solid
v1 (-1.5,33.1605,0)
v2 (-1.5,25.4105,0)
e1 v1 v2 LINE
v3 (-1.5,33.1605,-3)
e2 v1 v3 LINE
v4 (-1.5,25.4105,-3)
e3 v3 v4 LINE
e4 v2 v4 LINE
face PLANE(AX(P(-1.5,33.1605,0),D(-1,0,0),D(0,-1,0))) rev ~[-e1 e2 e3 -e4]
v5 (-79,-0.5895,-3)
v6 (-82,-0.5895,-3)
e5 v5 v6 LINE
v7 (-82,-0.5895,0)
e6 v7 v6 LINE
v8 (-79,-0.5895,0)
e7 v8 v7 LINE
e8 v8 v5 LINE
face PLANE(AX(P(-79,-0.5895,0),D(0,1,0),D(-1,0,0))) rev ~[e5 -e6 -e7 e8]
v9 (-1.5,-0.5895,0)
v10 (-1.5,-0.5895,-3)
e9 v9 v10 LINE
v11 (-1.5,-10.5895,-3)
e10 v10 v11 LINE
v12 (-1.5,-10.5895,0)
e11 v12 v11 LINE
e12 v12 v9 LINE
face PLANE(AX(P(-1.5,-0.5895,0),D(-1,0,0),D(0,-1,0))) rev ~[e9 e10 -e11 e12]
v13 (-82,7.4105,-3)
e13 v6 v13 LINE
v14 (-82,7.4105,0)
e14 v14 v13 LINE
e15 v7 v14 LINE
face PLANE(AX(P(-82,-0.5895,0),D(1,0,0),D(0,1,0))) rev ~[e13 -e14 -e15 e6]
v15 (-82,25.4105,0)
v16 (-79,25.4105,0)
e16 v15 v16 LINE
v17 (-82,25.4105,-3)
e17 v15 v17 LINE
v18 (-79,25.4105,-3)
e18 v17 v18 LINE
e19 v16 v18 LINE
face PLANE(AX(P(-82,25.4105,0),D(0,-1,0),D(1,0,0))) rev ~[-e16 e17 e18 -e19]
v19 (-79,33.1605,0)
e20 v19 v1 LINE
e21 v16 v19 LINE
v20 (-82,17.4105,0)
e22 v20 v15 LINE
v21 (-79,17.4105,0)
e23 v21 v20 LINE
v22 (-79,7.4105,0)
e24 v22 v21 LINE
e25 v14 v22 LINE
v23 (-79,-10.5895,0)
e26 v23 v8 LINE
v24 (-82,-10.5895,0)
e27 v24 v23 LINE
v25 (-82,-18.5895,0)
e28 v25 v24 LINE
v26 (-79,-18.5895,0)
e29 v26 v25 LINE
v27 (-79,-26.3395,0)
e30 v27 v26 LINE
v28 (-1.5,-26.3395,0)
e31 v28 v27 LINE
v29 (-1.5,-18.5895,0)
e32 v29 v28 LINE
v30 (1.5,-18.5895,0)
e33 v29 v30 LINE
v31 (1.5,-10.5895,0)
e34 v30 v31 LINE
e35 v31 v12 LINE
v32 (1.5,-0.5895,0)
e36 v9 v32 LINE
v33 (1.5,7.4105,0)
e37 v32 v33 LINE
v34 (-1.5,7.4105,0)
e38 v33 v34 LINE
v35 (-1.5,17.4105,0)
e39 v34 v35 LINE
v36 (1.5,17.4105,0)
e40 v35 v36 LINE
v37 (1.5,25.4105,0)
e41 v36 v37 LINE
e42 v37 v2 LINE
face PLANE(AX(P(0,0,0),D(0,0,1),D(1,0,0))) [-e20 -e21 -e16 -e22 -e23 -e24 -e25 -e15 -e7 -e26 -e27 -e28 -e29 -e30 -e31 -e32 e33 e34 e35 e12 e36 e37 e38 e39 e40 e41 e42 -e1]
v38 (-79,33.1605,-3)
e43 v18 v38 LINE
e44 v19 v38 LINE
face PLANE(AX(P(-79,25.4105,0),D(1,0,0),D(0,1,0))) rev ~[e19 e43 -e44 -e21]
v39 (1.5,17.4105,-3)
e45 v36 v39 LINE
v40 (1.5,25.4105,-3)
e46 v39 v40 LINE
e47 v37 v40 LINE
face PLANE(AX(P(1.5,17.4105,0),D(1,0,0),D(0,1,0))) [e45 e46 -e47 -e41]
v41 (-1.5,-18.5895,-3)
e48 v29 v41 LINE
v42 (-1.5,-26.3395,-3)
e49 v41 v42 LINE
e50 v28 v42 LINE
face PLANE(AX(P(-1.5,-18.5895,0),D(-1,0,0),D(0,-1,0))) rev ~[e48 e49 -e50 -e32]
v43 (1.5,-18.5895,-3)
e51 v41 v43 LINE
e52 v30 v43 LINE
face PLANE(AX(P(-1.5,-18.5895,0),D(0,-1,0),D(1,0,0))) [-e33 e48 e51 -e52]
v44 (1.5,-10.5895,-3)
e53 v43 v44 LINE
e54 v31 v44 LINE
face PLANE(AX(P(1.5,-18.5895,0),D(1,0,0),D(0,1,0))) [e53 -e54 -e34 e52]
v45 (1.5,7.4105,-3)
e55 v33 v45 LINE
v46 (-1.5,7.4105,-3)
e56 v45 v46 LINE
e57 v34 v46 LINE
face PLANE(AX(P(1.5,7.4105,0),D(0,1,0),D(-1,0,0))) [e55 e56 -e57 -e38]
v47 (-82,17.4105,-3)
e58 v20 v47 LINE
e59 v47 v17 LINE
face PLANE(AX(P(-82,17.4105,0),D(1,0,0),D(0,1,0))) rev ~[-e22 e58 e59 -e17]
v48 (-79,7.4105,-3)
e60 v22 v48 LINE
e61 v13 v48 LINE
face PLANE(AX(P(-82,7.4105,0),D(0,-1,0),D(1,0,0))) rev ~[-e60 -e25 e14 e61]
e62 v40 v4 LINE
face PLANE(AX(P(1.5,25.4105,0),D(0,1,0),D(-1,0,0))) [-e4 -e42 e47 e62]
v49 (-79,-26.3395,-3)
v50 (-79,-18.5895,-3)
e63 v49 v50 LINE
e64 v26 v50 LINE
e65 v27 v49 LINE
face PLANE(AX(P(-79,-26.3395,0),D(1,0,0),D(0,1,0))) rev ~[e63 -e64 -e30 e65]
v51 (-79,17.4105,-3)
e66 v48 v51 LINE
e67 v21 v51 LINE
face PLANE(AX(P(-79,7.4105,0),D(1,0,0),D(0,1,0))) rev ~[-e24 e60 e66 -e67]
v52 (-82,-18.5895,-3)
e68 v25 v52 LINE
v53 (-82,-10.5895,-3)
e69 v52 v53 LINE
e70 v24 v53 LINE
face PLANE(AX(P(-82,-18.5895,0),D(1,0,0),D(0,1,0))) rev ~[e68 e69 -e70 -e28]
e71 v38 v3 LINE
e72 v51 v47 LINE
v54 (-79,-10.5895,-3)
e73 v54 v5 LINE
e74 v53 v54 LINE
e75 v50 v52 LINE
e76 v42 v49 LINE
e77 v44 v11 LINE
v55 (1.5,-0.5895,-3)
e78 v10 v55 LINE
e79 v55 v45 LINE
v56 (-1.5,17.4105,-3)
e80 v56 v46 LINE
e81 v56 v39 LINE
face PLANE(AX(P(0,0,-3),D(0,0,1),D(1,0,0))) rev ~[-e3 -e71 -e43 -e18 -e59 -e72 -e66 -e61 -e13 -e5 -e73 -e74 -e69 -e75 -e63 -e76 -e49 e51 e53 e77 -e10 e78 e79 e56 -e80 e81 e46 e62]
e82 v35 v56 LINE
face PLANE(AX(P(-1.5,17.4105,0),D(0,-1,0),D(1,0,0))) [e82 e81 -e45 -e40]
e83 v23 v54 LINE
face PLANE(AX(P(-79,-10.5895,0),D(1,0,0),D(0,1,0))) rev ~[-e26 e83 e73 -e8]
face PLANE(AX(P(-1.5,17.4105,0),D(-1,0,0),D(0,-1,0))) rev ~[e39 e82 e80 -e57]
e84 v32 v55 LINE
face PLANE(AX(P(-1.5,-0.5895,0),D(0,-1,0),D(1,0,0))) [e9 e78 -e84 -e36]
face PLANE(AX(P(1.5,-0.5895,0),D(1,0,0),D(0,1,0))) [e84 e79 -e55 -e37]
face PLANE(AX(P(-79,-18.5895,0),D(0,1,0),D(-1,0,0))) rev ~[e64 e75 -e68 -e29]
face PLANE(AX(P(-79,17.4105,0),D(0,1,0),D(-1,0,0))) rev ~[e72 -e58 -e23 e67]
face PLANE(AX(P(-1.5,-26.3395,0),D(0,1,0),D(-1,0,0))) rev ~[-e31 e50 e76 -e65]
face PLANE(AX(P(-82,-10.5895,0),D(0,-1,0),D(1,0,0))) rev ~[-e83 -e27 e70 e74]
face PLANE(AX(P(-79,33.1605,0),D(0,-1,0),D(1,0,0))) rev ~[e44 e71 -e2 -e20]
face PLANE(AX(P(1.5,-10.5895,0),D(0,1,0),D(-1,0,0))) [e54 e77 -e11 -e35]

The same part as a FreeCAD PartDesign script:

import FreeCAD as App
import Part
import Sketcher

V = App.Vector
Q = App.Units.Quantity

doc = App.newDocument("Part")
body = doc.addObject("PartDesign::Body", "Body")

sketch1 = body.newObject("Sketcher::SketchObject", "Sketch")
sketch1.AttachmentSupport = (doc.getObject("XY_Plane"), [""])
sketch1.MapMode = "FlatFace"
sketch1.addGeometry(Part.LineSegment(V(-79, -18.5895, 0), V(-79, -26.3395, 0)), False)
sketch1.addGeometry(Part.LineSegment(V(-79, -26.3395, 0), V(-1.5, -26.3395, 0)), False)
sketch1.addGeometry(Part.LineSegment(V(-1.5, -26.3395, 0), V(-1.5, -18.5895, 0)), False)
sketch1.addGeometry(Part.LineSegment(V(-1.5, -18.5895, 0), V(1.5, -18.5895, 0)), False)
sketch1.addGeometry(Part.LineSegment(V(1.5, -18.5895, 0), V(1.5, -10.5895, 0)), False)
sketch1.addGeometry(Part.LineSegment(V(1.5, -10.5895, 0), V(-1.5, -10.5895, 0)), False)
sketch1.addGeometry(Part.LineSegment(V(-1.5, -10.5895, 0), V(-1.5, -0.5895, 0)), False)
sketch1.addGeometry(Part.LineSegment(V(-1.5, -0.5895, 0), V(1.5, -0.5895, 0)), False)
sketch1.addGeometry(Part.LineSegment(V(1.5, -0.5895, 0), V(1.5, 7.4105, 0)), False)
sketch1.addGeometry(Part.LineSegment(V(1.5, 7.4105, 0), V(-1.5, 7.4105, 0)), False)
sketch1.addGeometry(Part.LineSegment(V(-1.5, 7.4105, 0), V(-1.5, 17.4105, 0)), False)
sketch1.addGeometry(Part.LineSegment(V(-1.5, 17.4105, 0), V(1.5, 17.4105, 0)), False)
sketch1.addGeometry(Part.LineSegment(V(1.5, 17.4105, 0), V(1.5, 25.4105, 0)), False)
sketch1.addGeometry(Part.LineSegment(V(1.5, 25.4105, 0), V(-1.5, 25.4105, 0)), False)
sketch1.addGeometry(Part.LineSegment(V(-1.5, 25.4105, 0), V(-1.5, 33.1605, 0)), False)
sketch1.addGeometry(Part.LineSegment(V(-1.5, 33.1605, 0), V(-79, 33.1605, 0)), False)
sketch1.addGeometry(Part.LineSegment(V(-79, 33.1605, 0), V(-79, 25.4105, 0)), False)
sketch1.addGeometry(Part.LineSegment(V(-79, 25.4105, 0), V(-82, 25.4105, 0)), False)
sketch1.addGeometry(Part.LineSegment(V(-82, 25.4105, 0), V(-82, 17.4105, 0)), False)
sketch1.addGeometry(Part.LineSegment(V(-82, 17.4105, 0), V(-79, 17.4105, 0)), False)
sketch1.addGeometry(Part.LineSegment(V(-79, 17.4105, 0), V(-79, 7.4105, 0)), False)
sketch1.addGeometry(Part.LineSegment(V(-79, 7.4105, 0), V(-82, 7.4105, 0)), False)
sketch1.addGeometry(Part.LineSegment(V(-82, 7.4105, 0), V(-82, -0.5895, 0)), False)
sketch1.addGeometry(Part.LineSegment(V(-82, -0.5895, 0), V(-79, -0.5895, 0)), False)
sketch1.addGeometry(Part.LineSegment(V(-79, -0.5895, 0), V(-79, -10.5895, 0)), False)
sketch1.addGeometry(Part.LineSegment(V(-79, -10.5895, 0), V(-82, -10.5895, 0)), False)
sketch1.addGeometry(Part.LineSegment(V(-82, -10.5895, 0), V(-82, -18.5895, 0)), False)
sketch1.addGeometry(Part.LineSegment(V(-82, -18.5895, 0), V(-79, -18.5895, 0)), False)
sketch1.addConstraint(Sketcher.Constraint("Coincident", 0, 2, 1, 1))
sketch1.addConstraint(Sketcher.Constraint("Coincident", 1, 2, 2, 1))
sketch1.addConstraint(Sketcher.Constraint("Coincident", 2, 2, 3, 1))
sketch1.addConstraint(Sketcher.Constraint("Coincident", 3, 2, 4, 1))
sketch1.addConstraint(Sketcher.Constraint("Coincident", 4, 2, 5, 1))
sketch1.addConstraint(Sketcher.Constraint("Coincident", 5, 2, 6, 1))
sketch1.addConstraint(Sketcher.Constraint("Coincident", 6, 2, 7, 1))
sketch1.addConstraint(Sketcher.Constraint("Coincident", 7, 2, 8, 1))
sketch1.addConstraint(Sketcher.Constraint("Coincident", 8, 2, 9, 1))
sketch1.addConstraint(Sketcher.Constraint("Coincident", 9, 2, 10, 1))
sketch1.addConstraint(Sketcher.Constraint("Coincident", 10, 2, 11, 1))
sketch1.addConstraint(Sketcher.Constraint("Coincident", 11, 2, 12, 1))
sketch1.addConstraint(Sketcher.Constraint("Coincident", 12, 2, 13, 1))
sketch1.addConstraint(Sketcher.Constraint("Coincident", 13, 2, 14, 1))
sketch1.addConstraint(Sketcher.Constraint("Coincident", 14, 2, 15, 1))
sketch1.addConstraint(Sketcher.Constraint("Coincident", 15, 2, 16, 1))
sketch1.addConstraint(Sketcher.Constraint("Coincident", 16, 2, 17, 1))
sketch1.addConstraint(Sketcher.Constraint("Coincident", 17, 2, 18, 1))
sketch1.addConstraint(Sketcher.Constraint("Coincident", 18, 2, 19, 1))
sketch1.addConstraint(Sketcher.Constraint("Coincident", 19, 2, 20, 1))
sketch1.addConstraint(Sketcher.Constraint("Coincident", 20, 2, 21, 1))
sketch1.addConstraint(Sketcher.Constraint("Coincident", 21, 2, 22, 1))
sketch1.addConstraint(Sketcher.Constraint("Coincident", 22, 2, 23, 1))
sketch1.addConstraint(Sketcher.Constraint("Coincident", 23, 2, 24, 1))
sketch1.addConstraint(Sketcher.Constraint("Coincident", 24, 2, 25, 1))
sketch1.addConstraint(Sketcher.Constraint("Coincident", 25, 2, 26, 1))
sketch1.addConstraint(Sketcher.Constraint("Coincident", 26, 2, 27, 1))
sketch1.addConstraint(Sketcher.Constraint("Coincident", 27, 2, 0, 1))
sketch1.addConstraint(Sketcher.Constraint("Vertical", 0))
sketch1.addConstraint(Sketcher.Constraint("Horizontal", 1))
sketch1.addConstraint(Sketcher.Constraint("Vertical", 2))
sketch1.addConstraint(Sketcher.Constraint("Horizontal", 3))
sketch1.addConstraint(Sketcher.Constraint("Vertical", 4))
sketch1.addConstraint(Sketcher.Constraint("Horizontal", 5))
sketch1.addConstraint(Sketcher.Constraint("Vertical", 6))
sketch1.addConstraint(Sketcher.Constraint("Horizontal", 7))
sketch1.addConstraint(Sketcher.Constraint("Vertical", 8))
sketch1.addConstraint(Sketcher.Constraint("Horizontal", 9))
sketch1.addConstraint(Sketcher.Constraint("Vertical", 10))
sketch1.addConstraint(Sketcher.Constraint("Horizontal", 11))
sketch1.addConstraint(Sketcher.Constraint("Vertical", 12))
sketch1.addConstraint(Sketcher.Constraint("Horizontal", 13))
sketch1.addConstraint(Sketcher.Constraint("Vertical", 14))
sketch1.addConstraint(Sketcher.Constraint("Horizontal", 15))
sketch1.addConstraint(Sketcher.Constraint("Vertical", 16))
sketch1.addConstraint(Sketcher.Constraint("Horizontal", 17))
sketch1.addConstraint(Sketcher.Constraint("Vertical", 18))
sketch1.addConstraint(Sketcher.Constraint("Horizontal", 19))
sketch1.addConstraint(Sketcher.Constraint("Vertical", 20))
sketch1.addConstraint(Sketcher.Constraint("Horizontal", 21))
sketch1.addConstraint(Sketcher.Constraint("Vertical", 22))
sketch1.addConstraint(Sketcher.Constraint("Horizontal", 23))
sketch1.addConstraint(Sketcher.Constraint("Vertical", 24))
sketch1.addConstraint(Sketcher.Constraint("Horizontal", 25))
sketch1.addConstraint(Sketcher.Constraint("Vertical", 26))
sketch1.addConstraint(Sketcher.Constraint("Horizontal", 27))
sketch1.addConstraint(Sketcher.Constraint("Horizontal", 13, 2, 16, 2))
sketch1.addConstraint(Sketcher.Constraint("Horizontal", 11, 2, 18, 2))
sketch1.addConstraint(Sketcher.Constraint("Horizontal", 9, 2, 20, 2))
sketch1.addConstraint(Sketcher.Constraint("Horizontal", 7, 2, 22, 2))
sketch1.addConstraint(Sketcher.Constraint("Horizontal", 5, 2, 24, 2))
sketch1.addConstraint(Sketcher.Constraint("Horizontal", 3, 2, 26, 2))
sketch1.addConstraint(Sketcher.Constraint("Vertical", 2, 2, 5, 2))
sketch1.addConstraint(Sketcher.Constraint("Vertical", 4, 2, 7, 2))
sketch1.addConstraint(Sketcher.Constraint("Vertical", 6, 2, 9, 2))
sketch1.addConstraint(Sketcher.Constraint("Vertical", 8, 2, 11, 2))
sketch1.addConstraint(Sketcher.Constraint("Vertical", 10, 2, 13, 2))
sketch1.addConstraint(Sketcher.Constraint("Vertical", 0, 2, 15, 2))
sketch1.addConstraint(Sketcher.Constraint("Vertical", 16, 2, 19, 2))
sketch1.addConstraint(Sketcher.Constraint("Vertical", 18, 2, 21, 2))
sketch1.addConstraint(Sketcher.Constraint("Vertical", 20, 2, 23, 2))
sketch1.addConstraint(Sketcher.Constraint("Vertical", 22, 2, 25, 2))
sketch1.addConstraint(Sketcher.Constraint("Equal", 13, 17))
sketch1.addConstraint(Sketcher.Constraint("Equal", 4, 8))
sketch1.addConstraint(Sketcher.Constraint("Equal", 6, 10))
sketch1.addConstraint(Sketcher.Constraint("Equal", 8, 12))
sketch1.addConstraint(Sketcher.Constraint("Equal", 2, 14))
sketch1.addConstraint(Sketcher.Constraint("DistanceX", 3, 1, 3, 2, Q("3 mm")))
sketch1.addConstraint(Sketcher.Constraint("DistanceY", 4, 1, 4, 2, Q("8 mm")))
sketch1.addConstraint(Sketcher.Constraint("DistanceY", 6, 1, 6, 2, Q("10 mm")))
sketch1.addConstraint(Sketcher.Constraint("DistanceX", 1, 1, 1, 2, Q("77.5 mm")))
sketch1.addConstraint(Sketcher.Constraint("DistanceX", 0, 2, -1, 1, Q("79 mm")))
sketch1.addConstraint(Sketcher.Constraint("DistanceY", 0, 2, 0, 1, Q("7.75 mm")))
sketch1.addConstraint(Sketcher.Constraint("DistanceY", 0, 2, -1, 1, Q("26.3395 mm")))
pad1 = body.newObject("PartDesign::Pad", "Pad")
pad1.Profile = sketch1
pad1.Length = 3
pad1.Reversed = True

doc.recompute()
